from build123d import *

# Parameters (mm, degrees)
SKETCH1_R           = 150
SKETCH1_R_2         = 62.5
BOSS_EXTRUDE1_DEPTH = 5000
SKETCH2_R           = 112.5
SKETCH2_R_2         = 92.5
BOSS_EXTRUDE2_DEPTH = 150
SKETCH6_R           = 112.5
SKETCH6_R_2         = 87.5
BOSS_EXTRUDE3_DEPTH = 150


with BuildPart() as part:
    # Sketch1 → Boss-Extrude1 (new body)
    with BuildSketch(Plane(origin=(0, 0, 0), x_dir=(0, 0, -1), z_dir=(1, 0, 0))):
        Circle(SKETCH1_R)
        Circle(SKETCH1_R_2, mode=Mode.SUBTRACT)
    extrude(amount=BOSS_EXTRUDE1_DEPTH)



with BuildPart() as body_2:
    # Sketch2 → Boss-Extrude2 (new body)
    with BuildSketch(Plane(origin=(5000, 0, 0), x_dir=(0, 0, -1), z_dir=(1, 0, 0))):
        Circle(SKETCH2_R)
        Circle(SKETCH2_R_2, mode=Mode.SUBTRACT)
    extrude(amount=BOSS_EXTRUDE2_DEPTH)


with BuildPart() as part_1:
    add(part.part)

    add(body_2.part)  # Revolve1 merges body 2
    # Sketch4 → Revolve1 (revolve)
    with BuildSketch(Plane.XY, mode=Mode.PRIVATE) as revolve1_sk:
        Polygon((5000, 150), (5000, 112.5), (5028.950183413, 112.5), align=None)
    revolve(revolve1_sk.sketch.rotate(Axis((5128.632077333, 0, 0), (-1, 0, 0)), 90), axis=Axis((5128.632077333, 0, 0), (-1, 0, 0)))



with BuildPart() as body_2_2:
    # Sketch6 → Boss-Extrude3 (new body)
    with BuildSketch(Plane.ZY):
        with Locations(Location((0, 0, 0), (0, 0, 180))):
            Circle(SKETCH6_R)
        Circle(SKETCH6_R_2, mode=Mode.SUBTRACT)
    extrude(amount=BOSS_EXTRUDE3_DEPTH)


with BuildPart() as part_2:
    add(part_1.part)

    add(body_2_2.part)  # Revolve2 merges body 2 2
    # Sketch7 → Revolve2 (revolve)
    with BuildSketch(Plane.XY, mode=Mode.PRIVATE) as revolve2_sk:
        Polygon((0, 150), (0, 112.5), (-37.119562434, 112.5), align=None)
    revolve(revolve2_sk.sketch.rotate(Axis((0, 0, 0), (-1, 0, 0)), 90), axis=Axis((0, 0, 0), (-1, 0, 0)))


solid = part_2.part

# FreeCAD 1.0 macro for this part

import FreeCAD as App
import Part
import Sketcher
from FreeCAD import Vector
Q = App.Units.Quantity


def add_polygon(sketch, points):
    """Adds a closed chain of lines whose ends are joined by coincident constraints."""
    first, n = sketch.GeometryCount, len(points)
    for a, b in zip(points, points[1:] + points[:1]):
        sketch.addGeometry(Part.LineSegment(App.Vector(*a, 0), App.Vector(*b, 0)), False)
    for i in range(n):
        sketch.addConstraint(Sketcher.Constraint("Coincident", first + i, 2, first + (i + 1) % n, 1))

doc = App.newDocument("Part")
params = doc.addObject("Spreadsheet::Sheet", "Params")
for row, (alias, value) in enumerate([
    ("sketch1_diameter", "300 mm"),
    ("sketch1_diameter2", "125 mm"),
    ("pad1_length", "5000 mm"),
    ("sketch2_diameter", "225 mm"),
    ("sketch2_diameter2", "185 mm"),
    ("pad2_length", "150 mm"),
    ("sketch3_height", "37.5 mm"),
    ("revolution_angle", "360 deg"),
    ("sketch4_diameter", "225 mm"),
    ("sketch4_diameter2", "175 mm"),
    ("pad3_length", "150 mm"),
    ("sketch5_height", "37.5 mm"),
    ("revolution2_angle", "360 deg"),
], start=1):
    params.set(f"A{row}", alias)
    params.set(f"B{row}", "=" + value)
    params.setAlias(f"B{row}", alias)

body = doc.addObject("PartDesign::Body", "Body")

# Sketch on YZ plane
sketch1 = body.newObject("Sketcher::SketchObject", "Sketch")
sketch1.AttachmentSupport = (doc.getObject("YZ_Plane"), [""])
sketch1.MapMode = "FlatFace"
sketch1.addGeometry(Part.Circle(Vector(0, 0, 0), Vector(0, 0, 1), 150), False)
sketch1.addGeometry(Part.Circle(Vector(0, 0, 0), Vector(0, 0, 1), 62), False)
sketch1.addConstraint(Sketcher.Constraint("Coincident", 0, 3, -1, 1))
sketch1.addConstraint(Sketcher.Constraint("Coincident", 1, 3, -1, 1))
sketch1.addConstraint(Sketcher.Constraint("Diameter", 0, Q("300 mm")))
sketch1.addConstraint(Sketcher.Constraint("Diameter", 1, Q("125 mm")))
sketch1.setExpression("Constraints[2]", "Params.sketch1_diameter")
sketch1.setExpression("Constraints[3]", "Params.sketch1_diameter2")
pad1 = body.newObject("PartDesign::Pad", "Pad")
pad1.Profile = sketch1
pad1.setExpression("Length", "Params.pad1_length")
body2 = doc.addObject("PartDesign::Body", "Body001")

# Sketch on YZ plane
sketch2 = body2.newObject("Sketcher::SketchObject", "Sketch001")
sketch2.AttachmentSupport = (doc.getObject("YZ_Plane001"), [""])
sketch2.MapMode = "FlatFace"
sketch2.AttachmentOffset = App.Placement(Vector(0, 0, 5000), App.Rotation())
sketch2.addGeometry(Part.Circle(Vector(0, 0, 0), Vector(0, 0, 1), 112), False)
sketch2.addGeometry(Part.Circle(Vector(0, 0, 0), Vector(0, 0, 1), 92), False)
sketch2.addConstraint(Sketcher.Constraint("Coincident", 0, 3, -1, 1))
sketch2.addConstraint(Sketcher.Constraint("Coincident", 1, 3, -1, 1))
sketch2.addConstraint(Sketcher.Constraint("Diameter", 0, Q("225 mm")))
sketch2.addConstraint(Sketcher.Constraint("Diameter", 1, Q("185 mm")))
sketch2.setExpression("Constraints[2]", "Params.sketch2_diameter")
sketch2.setExpression("Constraints[3]", "Params.sketch2_diameter2")
pad2 = body2.newObject("PartDesign::Pad", "Pad001")
pad2.Profile = sketch2
pad2.setExpression("Length", "Params.pad2_length")
doc.recompute()

boolean = body.newObject("PartDesign::Boolean", "Boolean")
boolean.Type = "Fuse"
boolean.addObjects([body2])

# Sketch on XY plane
sketch3 = body.newObject("Sketcher::SketchObject", "Sketch002")
sketch3.AttachmentSupport = (doc.getObject("XY_Plane"), [""])
sketch3.MapMode = "FlatFace"
add_polygon(sketch3, [(5000, 150), (5000, 112), (5029, 112)])  # lines 0-2
sketch3.addConstraint(Sketcher.Constraint("Vertical", 0))
sketch3.addConstraint(Sketcher.Constraint("Horizontal", 1))
sketch3.addConstraint(Sketcher.Constraint("DistanceY", 0, 2, 0, 1, Q("37.5 mm")))
sketch3.addConstraint(Sketcher.Constraint("DistanceX", -1, 1, 0, 2, Q("5000 mm")))
sketch3.addConstraint(Sketcher.Constraint("DistanceY", -1, 1, 2, 2, Q("150 mm")))
sketch3.addConstraint(Sketcher.Constraint("Distance", 2, Q("47.37471 mm")))
sketch3.setExpression("Constraints[5]", "Params.sketch3_height")
revolution = body.newObject("PartDesign::Revolution", "Revolution")
revolution.Profile = sketch3
revolution.ReferenceAxis = (sketch3, ["H_Axis"])
revolution.setExpression("Angle", "Params.revolution_angle")
body3 = doc.addObject("PartDesign::Body", "Body002")

# Sketch on YZ plane
sketch4 = body3.newObject("Sketcher::SketchObject", "Sketch003")
sketch4.AttachmentSupport = (doc.getObject("YZ_Plane002"), [""])
sketch4.MapMode = "FlatFace"
sketch4.addGeometry(Part.Circle(Vector(0, 0, 0), Vector(0, 0, 1), 112), False)
sketch4.addGeometry(Part.Circle(Vector(0, 0, 0), Vector(0, 0, 1), 88), False)
sketch4.addConstraint(Sketcher.Constraint("Coincident", 0, 3, -1, 1))
sketch4.addConstraint(Sketcher.Constraint("Coincident", 1, 3, -1, 1))
sketch4.addConstraint(Sketcher.Constraint("Diameter", 0, Q("225 mm")))
sketch4.addConstraint(Sketcher.Constraint("Diameter", 1, Q("175 mm")))
sketch4.setExpression("Constraints[2]", "Params.sketch4_diameter")
sketch4.setExpression("Constraints[3]", "Params.sketch4_diameter2")
pad3 = body3.newObject("PartDesign::Pad", "Pad002")
pad3.Profile = sketch4
pad3.setExpression("Length", "Params.pad3_length")
pad3.Reversed = True
doc.recompute()

boolean2 = body.newObject("PartDesign::Boolean", "Boolean001")
boolean2.Type = "Fuse"
boolean2.addObjects([body3])

# Sketch on XY plane
sketch5 = body.newObject("Sketcher::SketchObject", "Sketch004")
sketch5.AttachmentSupport = (doc.getObject("XY_Plane"), [""])
sketch5.MapMode = "FlatFace"
add_polygon(sketch5, [(0, 112), (0, 150), (-37, 112)])  # lines 0-2
sketch5.addConstraint(Sketcher.Constraint("Vertical", 0))
sketch5.addConstraint(Sketcher.Constraint("Horizontal", 2))
sketch5.addConstraint(Sketcher.Constraint("PointOnObject", 0, 2, -2))
sketch5.addConstraint(Sketcher.Constraint("DistanceY", 0, 1, 0, 2, Q("37.5 mm")))
sketch5.addConstraint(Sketcher.Constraint("DistanceY", -1, 1, 0, 2, Q("150 mm")))
sketch5.addConstraint(Sketcher.Constraint("DistanceX", 2, 1, 2, 2, Q("37.119562 mm")))
sketch5.setExpression("Constraints[6]", "Params.sketch5_height")
revolution2 = body.newObject("PartDesign::Revolution", "Revolution001")
revolution2.Profile = sketch5
revolution2.ReferenceAxis = (sketch5, ["H_Axis"])
revolution2.setExpression("Angle", "Params.revolution2_angle")

doc.recompute()
